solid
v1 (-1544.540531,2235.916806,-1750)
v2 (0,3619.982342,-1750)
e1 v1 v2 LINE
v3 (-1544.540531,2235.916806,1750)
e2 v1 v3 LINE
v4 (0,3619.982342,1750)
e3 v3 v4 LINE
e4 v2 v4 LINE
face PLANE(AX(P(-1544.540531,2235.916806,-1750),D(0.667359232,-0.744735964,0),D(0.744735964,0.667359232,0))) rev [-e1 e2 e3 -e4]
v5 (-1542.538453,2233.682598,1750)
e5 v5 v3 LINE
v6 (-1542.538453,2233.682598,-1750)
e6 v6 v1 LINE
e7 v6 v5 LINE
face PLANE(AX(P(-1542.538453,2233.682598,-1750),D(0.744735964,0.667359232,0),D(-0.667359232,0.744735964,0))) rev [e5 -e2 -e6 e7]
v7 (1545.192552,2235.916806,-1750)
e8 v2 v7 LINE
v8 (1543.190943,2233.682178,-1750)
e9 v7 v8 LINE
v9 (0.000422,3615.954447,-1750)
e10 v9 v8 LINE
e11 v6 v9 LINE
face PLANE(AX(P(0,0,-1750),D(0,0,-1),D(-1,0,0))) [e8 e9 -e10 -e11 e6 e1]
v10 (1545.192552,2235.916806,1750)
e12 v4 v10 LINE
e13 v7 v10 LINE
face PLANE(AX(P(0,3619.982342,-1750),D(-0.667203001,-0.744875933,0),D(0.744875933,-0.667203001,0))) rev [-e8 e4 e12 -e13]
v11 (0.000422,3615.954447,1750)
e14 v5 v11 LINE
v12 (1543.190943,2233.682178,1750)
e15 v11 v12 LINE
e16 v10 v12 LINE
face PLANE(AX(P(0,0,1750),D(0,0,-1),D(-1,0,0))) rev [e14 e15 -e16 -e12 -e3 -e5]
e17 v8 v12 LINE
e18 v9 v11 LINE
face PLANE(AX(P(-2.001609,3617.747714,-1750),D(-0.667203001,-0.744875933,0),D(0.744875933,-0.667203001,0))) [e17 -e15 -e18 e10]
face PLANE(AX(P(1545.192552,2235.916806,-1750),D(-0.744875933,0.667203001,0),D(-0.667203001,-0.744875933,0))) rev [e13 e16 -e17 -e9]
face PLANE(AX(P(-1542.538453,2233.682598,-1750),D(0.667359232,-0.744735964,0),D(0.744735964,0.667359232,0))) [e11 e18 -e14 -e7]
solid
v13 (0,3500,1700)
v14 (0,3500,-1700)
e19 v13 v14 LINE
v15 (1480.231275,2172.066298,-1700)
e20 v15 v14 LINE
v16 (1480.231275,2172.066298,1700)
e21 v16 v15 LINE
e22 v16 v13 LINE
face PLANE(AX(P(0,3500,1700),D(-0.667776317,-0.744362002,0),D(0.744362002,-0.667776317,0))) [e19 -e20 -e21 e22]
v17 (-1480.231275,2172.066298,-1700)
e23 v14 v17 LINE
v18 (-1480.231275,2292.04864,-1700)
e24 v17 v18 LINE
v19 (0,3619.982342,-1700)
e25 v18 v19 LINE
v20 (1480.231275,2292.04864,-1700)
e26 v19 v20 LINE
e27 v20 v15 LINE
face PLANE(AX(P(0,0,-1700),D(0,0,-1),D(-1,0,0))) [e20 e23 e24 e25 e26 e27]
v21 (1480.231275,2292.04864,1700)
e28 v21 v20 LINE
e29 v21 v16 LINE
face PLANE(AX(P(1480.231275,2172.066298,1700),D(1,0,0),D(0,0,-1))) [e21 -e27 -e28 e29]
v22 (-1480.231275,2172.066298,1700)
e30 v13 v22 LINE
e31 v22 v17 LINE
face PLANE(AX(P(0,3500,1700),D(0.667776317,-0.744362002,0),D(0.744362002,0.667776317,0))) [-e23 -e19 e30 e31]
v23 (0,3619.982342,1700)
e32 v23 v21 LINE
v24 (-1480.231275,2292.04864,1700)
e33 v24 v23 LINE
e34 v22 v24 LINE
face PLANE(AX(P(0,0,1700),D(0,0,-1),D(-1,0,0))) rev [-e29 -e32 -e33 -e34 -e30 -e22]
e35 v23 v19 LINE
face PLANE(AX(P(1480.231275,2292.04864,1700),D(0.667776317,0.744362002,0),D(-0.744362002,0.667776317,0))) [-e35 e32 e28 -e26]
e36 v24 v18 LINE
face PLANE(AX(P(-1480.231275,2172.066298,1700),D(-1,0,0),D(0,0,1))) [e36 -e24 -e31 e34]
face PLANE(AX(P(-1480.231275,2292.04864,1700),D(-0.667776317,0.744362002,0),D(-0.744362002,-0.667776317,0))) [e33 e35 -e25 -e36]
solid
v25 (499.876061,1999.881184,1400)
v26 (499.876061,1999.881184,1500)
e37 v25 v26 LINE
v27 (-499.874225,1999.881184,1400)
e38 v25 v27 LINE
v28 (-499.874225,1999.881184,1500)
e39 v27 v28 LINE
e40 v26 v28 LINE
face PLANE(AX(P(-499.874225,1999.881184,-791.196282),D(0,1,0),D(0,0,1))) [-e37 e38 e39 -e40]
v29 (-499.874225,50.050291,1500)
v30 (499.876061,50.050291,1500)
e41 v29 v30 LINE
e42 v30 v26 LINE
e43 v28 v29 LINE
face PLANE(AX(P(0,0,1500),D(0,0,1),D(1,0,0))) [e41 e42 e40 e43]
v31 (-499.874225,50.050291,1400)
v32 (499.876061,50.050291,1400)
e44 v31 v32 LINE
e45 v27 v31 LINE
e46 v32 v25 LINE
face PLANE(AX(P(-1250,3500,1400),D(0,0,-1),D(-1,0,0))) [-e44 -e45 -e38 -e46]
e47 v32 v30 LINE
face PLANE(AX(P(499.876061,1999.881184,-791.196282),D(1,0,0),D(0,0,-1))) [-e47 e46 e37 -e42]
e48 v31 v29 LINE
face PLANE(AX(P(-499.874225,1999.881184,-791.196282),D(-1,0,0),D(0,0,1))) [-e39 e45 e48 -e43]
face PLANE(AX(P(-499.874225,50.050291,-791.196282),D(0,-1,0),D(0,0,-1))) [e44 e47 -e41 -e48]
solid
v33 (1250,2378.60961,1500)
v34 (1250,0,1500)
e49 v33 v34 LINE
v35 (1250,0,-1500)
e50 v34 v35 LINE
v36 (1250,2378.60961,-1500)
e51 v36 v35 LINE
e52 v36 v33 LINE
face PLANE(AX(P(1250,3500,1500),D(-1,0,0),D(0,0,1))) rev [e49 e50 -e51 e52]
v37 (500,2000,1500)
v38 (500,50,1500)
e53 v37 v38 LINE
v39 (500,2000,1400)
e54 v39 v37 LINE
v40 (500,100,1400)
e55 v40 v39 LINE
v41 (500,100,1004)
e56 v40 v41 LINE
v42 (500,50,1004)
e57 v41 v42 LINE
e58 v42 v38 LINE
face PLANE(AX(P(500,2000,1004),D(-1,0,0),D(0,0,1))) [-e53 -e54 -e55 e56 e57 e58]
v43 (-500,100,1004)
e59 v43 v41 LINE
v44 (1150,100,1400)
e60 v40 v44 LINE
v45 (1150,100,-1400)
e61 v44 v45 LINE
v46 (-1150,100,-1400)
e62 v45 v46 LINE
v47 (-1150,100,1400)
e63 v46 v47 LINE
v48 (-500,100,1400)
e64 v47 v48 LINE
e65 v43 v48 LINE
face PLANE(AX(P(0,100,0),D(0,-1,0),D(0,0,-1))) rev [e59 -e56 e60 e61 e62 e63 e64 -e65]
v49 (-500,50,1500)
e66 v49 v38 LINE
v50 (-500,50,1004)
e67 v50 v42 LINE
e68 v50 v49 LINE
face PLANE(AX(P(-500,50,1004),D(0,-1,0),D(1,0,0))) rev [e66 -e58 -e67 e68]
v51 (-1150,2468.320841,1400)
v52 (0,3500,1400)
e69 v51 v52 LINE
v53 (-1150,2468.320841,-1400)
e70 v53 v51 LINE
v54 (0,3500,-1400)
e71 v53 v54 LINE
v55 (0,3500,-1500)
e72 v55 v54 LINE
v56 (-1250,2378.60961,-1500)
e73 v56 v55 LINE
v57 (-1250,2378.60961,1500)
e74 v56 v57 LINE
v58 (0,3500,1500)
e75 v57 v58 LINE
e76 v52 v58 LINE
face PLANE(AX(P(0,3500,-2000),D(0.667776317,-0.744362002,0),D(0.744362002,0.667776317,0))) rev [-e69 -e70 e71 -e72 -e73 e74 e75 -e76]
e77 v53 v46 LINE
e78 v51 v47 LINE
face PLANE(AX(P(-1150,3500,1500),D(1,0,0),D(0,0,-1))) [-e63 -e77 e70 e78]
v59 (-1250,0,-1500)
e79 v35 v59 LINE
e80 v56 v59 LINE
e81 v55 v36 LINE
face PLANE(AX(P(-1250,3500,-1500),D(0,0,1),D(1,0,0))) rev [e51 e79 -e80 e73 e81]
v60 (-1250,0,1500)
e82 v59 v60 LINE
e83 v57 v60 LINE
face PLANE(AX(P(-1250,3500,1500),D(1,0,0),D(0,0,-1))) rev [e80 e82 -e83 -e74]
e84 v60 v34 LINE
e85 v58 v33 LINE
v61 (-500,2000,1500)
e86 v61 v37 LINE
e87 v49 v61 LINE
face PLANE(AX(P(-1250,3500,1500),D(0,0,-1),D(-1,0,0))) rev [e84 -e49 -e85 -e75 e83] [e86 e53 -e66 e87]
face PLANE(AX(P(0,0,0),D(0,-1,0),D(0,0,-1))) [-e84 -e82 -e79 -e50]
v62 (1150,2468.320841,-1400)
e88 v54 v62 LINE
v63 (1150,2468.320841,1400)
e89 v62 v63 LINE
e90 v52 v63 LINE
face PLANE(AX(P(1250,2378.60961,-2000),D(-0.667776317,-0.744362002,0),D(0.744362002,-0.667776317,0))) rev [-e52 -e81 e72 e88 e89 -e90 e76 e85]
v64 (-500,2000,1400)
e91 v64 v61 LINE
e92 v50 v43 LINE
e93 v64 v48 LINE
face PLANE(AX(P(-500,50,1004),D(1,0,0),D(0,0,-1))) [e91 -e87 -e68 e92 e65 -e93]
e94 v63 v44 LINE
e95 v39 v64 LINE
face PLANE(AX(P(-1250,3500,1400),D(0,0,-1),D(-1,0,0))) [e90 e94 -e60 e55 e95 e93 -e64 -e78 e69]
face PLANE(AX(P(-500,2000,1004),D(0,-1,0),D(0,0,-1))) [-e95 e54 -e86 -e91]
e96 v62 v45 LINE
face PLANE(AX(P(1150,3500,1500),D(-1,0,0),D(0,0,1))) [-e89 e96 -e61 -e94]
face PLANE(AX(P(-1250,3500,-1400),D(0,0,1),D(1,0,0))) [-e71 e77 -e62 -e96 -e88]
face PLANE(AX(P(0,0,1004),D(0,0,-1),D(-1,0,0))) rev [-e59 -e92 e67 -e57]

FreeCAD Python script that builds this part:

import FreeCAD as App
import Part
import Sketcher
Q = App.Units.Quantity


def faces_at(feature, points):
    """Names of the faces that lie closest to the given points."""
    faces = feature.Shape.Faces
    near = lambda p: min(range(len(faces)), key=lambda i: faces[i].distToShape(Part.Vertex(*p))[0])
    return sorted({f"Face{near(p) + 1}" for p in points})


def add_polygon(sketch, points):
    """Adds a closed chain of lines whose ends are joined by coincident constraints."""
    first, n = sketch.GeometryCount, len(points)
    for a, b in zip(points, points[1:] + points[:1]):
        sketch.addGeometry(Part.LineSegment(App.Vector(*a, 0), App.Vector(*b, 0)), False)
    for i in range(n):
        sketch.addConstraint(Sketcher.Constraint("Coincident", first + i, 2, first + (i + 1) % n, 1))

doc = App.newDocument("Part")
body = doc.addObject("PartDesign::Body", "Body")

sketch1 = body.newObject("Sketcher::SketchObject", "Sketch")
sketch1.AttachmentSupport = (doc.getObject("XZ_Plane"), [""])
sketch1.MapMode = "FlatFace"
add_polygon(sketch1, [(-1250, -1500), (-1250, 1500), (1250, 1500), (1250, -1500)])
sketch1.addConstraint(Sketcher.Constraint("Vertical", 0))
sketch1.addConstraint(Sketcher.Constraint("Horizontal", 1))
sketch1.addConstraint(Sketcher.Constraint("Vertical", 2))
sketch1.addConstraint(Sketcher.Constraint("Horizontal", 3))
sketch1.addConstraint(Sketcher.Constraint("Symmetric", 0, 2, 2, 2, -1, 1))
sketch1.addConstraint(Sketcher.Constraint("DistanceX", 1, 1, 1, 2, Q("2500 mm")))
sketch1.addConstraint(Sketcher.Constraint("DistanceY", 0, 1, 0, 2, Q("3000 mm")))
pad1 = body.newObject("PartDesign::Pad", "Pad")
pad1.Profile = sketch1
pad1.Length = 3500
pad1.Reversed = True

sketch2 = body.newObject("Sketcher::SketchObject", "Sketch001")
sketch2.AttachmentSupport = (doc.getObject("XY_Plane"), [""])
sketch2.MapMode = "FlatFace"
sketch2.AttachmentOffset = App.Placement(App.Vector(0, 0, 1500), App.Rotation())
add_polygon(sketch2, [(-1250, 2378.60961), (0, 3500), (1250, 2378.60961), (1250, 3819.872543), (-1250, 3819.872543)])
sketch2.addConstraint(Sketcher.Constraint("Vertical", 2))
sketch2.addConstraint(Sketcher.Constraint("Horizontal", 3))
sketch2.addConstraint(Sketcher.Constraint("Vertical", 4))
sketch2.addConstraint(Sketcher.Constraint("Symmetric", 1, 2, 4, 2, -2))
sketch2.addConstraint(Sketcher.Constraint("PointOnObject", 0, 2, -2))
sketch2.addConstraint(Sketcher.Constraint("DistanceX", 3, 2, 3, 1, Q("2500 mm")))
sketch2.addConstraint(Sketcher.Constraint("DistanceY", -1, 1, 0, 2, Q("3500 mm")))
sketch2.addConstraint(Sketcher.Constraint("DistanceY", 2, 1, 2, 2, Q("1441.262933 mm")))
sketch2.addConstraint(Sketcher.Constraint("DistanceY", -1, 1, 1, 2, Q("2378.60961 mm")))
pocket1 = body.newObject("PartDesign::Pocket", "Pocket")
pocket1.Profile = sketch2
pocket1.Length = 3500
doc.recompute()

thickness = body.newObject("PartDesign::Thickness", "Thickness")
thickness.Base = (pocket1, faces_at(pocket1, [(625, 2939.305, 0), (-625, 2939.305, 0)]))
thickness.Value = 100
thickness.Reversed = True
thickness.Join = "Intersection"

sketch3 = body.newObject("Sketcher::SketchObject", "Sketch002")
sketch3.AttachmentSupport = (doc.getObject("XY_Plane"), [""])
sketch3.MapMode = "FlatFace"
sketch3.AttachmentOffset = App.Placement(App.Vector(0, 0, 1500), App.Rotation())
add_polygon(sketch3, [(-500, 2000), (-500, 50), (500, 50), (500, 2000)])
sketch3.addConstraint(Sketcher.Constraint("Vertical", 0))
sketch3.addConstraint(Sketcher.Constraint("Horizontal", 1))
sketch3.addConstraint(Sketcher.Constraint("Vertical", 2))
sketch3.addConstraint(Sketcher.Constraint("Horizontal", 3))
sketch3.addConstraint(Sketcher.Constraint("DistanceX", 1, 1, 1, 2, Q("1000 mm")))
sketch3.addConstraint(Sketcher.Constraint("DistanceY", 0, 2, 0, 1, Q("1950 mm")))
sketch3.addConstraint(Sketcher.Constraint("DistanceX", 0, 2, -1, 1, Q("500 mm")))
sketch3.addConstraint(Sketcher.Constraint("DistanceY", -1, 1, 0, 2, Q("50 mm")))
pocket2 = body.newObject("PartDesign::Pocket", "Pocket001")
pocket2.Profile = sketch3
pocket2.Length = 496
body2 = doc.addObject("PartDesign::Body", "Body001")

sketch4 = body2.newObject("Sketcher::SketchObject", "Sketch003")
sketch4.AttachmentSupport = (doc.getObject("XY_Plane001"), [""])
sketch4.MapMode = "FlatFace"
sketch4.AttachmentOffset = App.Placement(App.Vector(0, 0, 1500), App.Rotation())
add_polygon(sketch4, [(-499.874225, 1999.881184), (-499.874225, 50.050291), (499.876061, 50.050291), (499.876061, 1999.881184)])
sketch4.addConstraint(Sketcher.Constraint("Vertical", 0))
sketch4.addConstraint(Sketcher.Constraint("Horizontal", 1))
sketch4.addConstraint(Sketcher.Constraint("Vertical", 2))
sketch4.addConstraint(Sketcher.Constraint("Horizontal", 3))
sketch4.addConstraint(Sketcher.Constraint("DistanceX", 1, 1, 1, 2, Q("999.750286 mm")))
sketch4.addConstraint(Sketcher.Constraint("DistanceY", 0, 2, 0, 1, Q("1949.830893 mm")))
sketch4.addConstraint(Sketcher.Constraint("DistanceY", -1, 1, 0, 2, Q("50.050291 mm")))
sketch4.addConstraint(Sketcher.Constraint("DistanceX", -1, 1, 1, 2, Q("499.876061 mm")))
pad2 = body2.newObject("PartDesign::Pad", "Pad001")
pad2.Profile = sketch4
pad2.Length = 100
pad2.Reversed = True
body3 = doc.addObject("PartDesign::Body", "Body002")

sketch5 = body3.newObject("Sketcher::SketchObject", "Sketch004")
sketch5.AttachmentSupport = (doc.getObject("XY_Plane002"), [""])
sketch5.MapMode = "FlatFace"
sketch5.AttachmentOffset = App.Placement(App.Vector(0, 0, -1500), App.Rotation())
add_polygon(sketch5, [(1480.231275, 2172.066298), (0, 3500), (-1480.231275, 2172.066298), (-1480.231275, 2292.04864), (0, 3619.982342), (1480.231275, 2292.04864)])
sketch5.addConstraint(Sketcher.Constraint("Vertical", 2))
sketch5.addConstraint(Sketcher.Constraint("Vertical", 5))
sketch5.addConstraint(Sketcher.Constraint("Symmetric", 2, 2, 4, 2, -2))
sketch5.addConstraint(Sketcher.Constraint("PointOnObject", 0, 2, -2))
sketch5.addConstraint(Sketcher.Constraint("PointOnObject", 3, 2, -2))
sketch5.addConstraint(Sketcher.Constraint("Parallel", 1, 3))
sketch5.addConstraint(Sketcher.Constraint("Parallel", 0, 4))
sketch5.addConstraint(Sketcher.Constraint("DistanceY", -1, 1, 0, 2, Q("3500 mm")))
sketch5.addConstraint(Sketcher.Constraint("DistanceY", -1, 1, 1, 2, Q("2172.066298 mm")))
sketch5.addConstraint(Sketcher.Constraint("DistanceY", 2, 1, 2, 2, Q("119.982342 mm")))
sketch5.addConstraint(Sketcher.Constraint("DistanceX", 2, 2, 4, 2, Q("2960.46255 mm")))
pad3 = body3.newObject("PartDesign::Pad", "Pad002")
pad3.Profile = sketch5
pad3.Type = "TwoLengths"
pad3.Length = 200
pad3.Length2 = 3200
pad3.Reversed = True
body4 = doc.addObject("PartDesign::Body", "Body003")

sketch6 = body4.newObject("Sketcher::SketchObject", "Sketch005")
sketch6.AttachmentSupport = (doc.getObject("XY_Plane003"), [""])
sketch6.MapMode = "FlatFace"
sketch6.AttachmentOffset = App.Placement(App.Vector(0, 0, 1700), App.Rotation())
add_polygon(sketch6, [(0, 3619.982342), (-1544.540531, 2235.916806), (-1542.538453, 2233.682598), (0.000422, 3615.954447), (1543.190943, 2233.682178), (1545.192552, 2235.916806)])
sketch6.addConstraint(Sketcher.Constraint("PointOnObject", 5, 2, -2))
sketch6.addConstraint(Sketcher.Constraint("Perpendicular", 0, 1))
sketch6.addConstraint(Sketcher.Constraint("Parallel", 0, 2))
sketch6.addConstraint(Sketcher.Constraint("Perpendicular", 3, 4))
sketch6.addConstraint(Sketcher.Constraint("Parallel", 3, 5))
sketch6.addConstraint(Sketcher.Constraint("Horizontal", 0, 2, 4, 2))
sketch6.addConstraint(Sketcher.Constraint("Equal", 1, 4))
sketch6.addConstraint(Sketcher.Constraint("Distance", 1, Q("3 mm")))
sketch6.addConstraint(Sketcher.Constraint("DistanceX", 0, 2, -1, 1, Q("1544.540531 mm")))
sketch6.addConstraint(Sketcher.Constraint("DistanceY", 1, 2, 2, 2, Q("1382.27185 mm")))
sketch6.addConstraint(Sketcher.Constraint("DistanceX", 2, 2, 3, 2, Q("1543.190521 mm")))
sketch6.addConstraint(Sketcher.Constraint("DistanceY", -1, 1, 0, 2, Q("2235.916806 mm")))
pad4 = body4.newObject("PartDesign::Pad", "Pad003")
pad4.Profile = sketch6
pad4.Type = "TwoLengths"
pad4.Length = 50
pad4.Length2 = 3450

doc.recompute()
